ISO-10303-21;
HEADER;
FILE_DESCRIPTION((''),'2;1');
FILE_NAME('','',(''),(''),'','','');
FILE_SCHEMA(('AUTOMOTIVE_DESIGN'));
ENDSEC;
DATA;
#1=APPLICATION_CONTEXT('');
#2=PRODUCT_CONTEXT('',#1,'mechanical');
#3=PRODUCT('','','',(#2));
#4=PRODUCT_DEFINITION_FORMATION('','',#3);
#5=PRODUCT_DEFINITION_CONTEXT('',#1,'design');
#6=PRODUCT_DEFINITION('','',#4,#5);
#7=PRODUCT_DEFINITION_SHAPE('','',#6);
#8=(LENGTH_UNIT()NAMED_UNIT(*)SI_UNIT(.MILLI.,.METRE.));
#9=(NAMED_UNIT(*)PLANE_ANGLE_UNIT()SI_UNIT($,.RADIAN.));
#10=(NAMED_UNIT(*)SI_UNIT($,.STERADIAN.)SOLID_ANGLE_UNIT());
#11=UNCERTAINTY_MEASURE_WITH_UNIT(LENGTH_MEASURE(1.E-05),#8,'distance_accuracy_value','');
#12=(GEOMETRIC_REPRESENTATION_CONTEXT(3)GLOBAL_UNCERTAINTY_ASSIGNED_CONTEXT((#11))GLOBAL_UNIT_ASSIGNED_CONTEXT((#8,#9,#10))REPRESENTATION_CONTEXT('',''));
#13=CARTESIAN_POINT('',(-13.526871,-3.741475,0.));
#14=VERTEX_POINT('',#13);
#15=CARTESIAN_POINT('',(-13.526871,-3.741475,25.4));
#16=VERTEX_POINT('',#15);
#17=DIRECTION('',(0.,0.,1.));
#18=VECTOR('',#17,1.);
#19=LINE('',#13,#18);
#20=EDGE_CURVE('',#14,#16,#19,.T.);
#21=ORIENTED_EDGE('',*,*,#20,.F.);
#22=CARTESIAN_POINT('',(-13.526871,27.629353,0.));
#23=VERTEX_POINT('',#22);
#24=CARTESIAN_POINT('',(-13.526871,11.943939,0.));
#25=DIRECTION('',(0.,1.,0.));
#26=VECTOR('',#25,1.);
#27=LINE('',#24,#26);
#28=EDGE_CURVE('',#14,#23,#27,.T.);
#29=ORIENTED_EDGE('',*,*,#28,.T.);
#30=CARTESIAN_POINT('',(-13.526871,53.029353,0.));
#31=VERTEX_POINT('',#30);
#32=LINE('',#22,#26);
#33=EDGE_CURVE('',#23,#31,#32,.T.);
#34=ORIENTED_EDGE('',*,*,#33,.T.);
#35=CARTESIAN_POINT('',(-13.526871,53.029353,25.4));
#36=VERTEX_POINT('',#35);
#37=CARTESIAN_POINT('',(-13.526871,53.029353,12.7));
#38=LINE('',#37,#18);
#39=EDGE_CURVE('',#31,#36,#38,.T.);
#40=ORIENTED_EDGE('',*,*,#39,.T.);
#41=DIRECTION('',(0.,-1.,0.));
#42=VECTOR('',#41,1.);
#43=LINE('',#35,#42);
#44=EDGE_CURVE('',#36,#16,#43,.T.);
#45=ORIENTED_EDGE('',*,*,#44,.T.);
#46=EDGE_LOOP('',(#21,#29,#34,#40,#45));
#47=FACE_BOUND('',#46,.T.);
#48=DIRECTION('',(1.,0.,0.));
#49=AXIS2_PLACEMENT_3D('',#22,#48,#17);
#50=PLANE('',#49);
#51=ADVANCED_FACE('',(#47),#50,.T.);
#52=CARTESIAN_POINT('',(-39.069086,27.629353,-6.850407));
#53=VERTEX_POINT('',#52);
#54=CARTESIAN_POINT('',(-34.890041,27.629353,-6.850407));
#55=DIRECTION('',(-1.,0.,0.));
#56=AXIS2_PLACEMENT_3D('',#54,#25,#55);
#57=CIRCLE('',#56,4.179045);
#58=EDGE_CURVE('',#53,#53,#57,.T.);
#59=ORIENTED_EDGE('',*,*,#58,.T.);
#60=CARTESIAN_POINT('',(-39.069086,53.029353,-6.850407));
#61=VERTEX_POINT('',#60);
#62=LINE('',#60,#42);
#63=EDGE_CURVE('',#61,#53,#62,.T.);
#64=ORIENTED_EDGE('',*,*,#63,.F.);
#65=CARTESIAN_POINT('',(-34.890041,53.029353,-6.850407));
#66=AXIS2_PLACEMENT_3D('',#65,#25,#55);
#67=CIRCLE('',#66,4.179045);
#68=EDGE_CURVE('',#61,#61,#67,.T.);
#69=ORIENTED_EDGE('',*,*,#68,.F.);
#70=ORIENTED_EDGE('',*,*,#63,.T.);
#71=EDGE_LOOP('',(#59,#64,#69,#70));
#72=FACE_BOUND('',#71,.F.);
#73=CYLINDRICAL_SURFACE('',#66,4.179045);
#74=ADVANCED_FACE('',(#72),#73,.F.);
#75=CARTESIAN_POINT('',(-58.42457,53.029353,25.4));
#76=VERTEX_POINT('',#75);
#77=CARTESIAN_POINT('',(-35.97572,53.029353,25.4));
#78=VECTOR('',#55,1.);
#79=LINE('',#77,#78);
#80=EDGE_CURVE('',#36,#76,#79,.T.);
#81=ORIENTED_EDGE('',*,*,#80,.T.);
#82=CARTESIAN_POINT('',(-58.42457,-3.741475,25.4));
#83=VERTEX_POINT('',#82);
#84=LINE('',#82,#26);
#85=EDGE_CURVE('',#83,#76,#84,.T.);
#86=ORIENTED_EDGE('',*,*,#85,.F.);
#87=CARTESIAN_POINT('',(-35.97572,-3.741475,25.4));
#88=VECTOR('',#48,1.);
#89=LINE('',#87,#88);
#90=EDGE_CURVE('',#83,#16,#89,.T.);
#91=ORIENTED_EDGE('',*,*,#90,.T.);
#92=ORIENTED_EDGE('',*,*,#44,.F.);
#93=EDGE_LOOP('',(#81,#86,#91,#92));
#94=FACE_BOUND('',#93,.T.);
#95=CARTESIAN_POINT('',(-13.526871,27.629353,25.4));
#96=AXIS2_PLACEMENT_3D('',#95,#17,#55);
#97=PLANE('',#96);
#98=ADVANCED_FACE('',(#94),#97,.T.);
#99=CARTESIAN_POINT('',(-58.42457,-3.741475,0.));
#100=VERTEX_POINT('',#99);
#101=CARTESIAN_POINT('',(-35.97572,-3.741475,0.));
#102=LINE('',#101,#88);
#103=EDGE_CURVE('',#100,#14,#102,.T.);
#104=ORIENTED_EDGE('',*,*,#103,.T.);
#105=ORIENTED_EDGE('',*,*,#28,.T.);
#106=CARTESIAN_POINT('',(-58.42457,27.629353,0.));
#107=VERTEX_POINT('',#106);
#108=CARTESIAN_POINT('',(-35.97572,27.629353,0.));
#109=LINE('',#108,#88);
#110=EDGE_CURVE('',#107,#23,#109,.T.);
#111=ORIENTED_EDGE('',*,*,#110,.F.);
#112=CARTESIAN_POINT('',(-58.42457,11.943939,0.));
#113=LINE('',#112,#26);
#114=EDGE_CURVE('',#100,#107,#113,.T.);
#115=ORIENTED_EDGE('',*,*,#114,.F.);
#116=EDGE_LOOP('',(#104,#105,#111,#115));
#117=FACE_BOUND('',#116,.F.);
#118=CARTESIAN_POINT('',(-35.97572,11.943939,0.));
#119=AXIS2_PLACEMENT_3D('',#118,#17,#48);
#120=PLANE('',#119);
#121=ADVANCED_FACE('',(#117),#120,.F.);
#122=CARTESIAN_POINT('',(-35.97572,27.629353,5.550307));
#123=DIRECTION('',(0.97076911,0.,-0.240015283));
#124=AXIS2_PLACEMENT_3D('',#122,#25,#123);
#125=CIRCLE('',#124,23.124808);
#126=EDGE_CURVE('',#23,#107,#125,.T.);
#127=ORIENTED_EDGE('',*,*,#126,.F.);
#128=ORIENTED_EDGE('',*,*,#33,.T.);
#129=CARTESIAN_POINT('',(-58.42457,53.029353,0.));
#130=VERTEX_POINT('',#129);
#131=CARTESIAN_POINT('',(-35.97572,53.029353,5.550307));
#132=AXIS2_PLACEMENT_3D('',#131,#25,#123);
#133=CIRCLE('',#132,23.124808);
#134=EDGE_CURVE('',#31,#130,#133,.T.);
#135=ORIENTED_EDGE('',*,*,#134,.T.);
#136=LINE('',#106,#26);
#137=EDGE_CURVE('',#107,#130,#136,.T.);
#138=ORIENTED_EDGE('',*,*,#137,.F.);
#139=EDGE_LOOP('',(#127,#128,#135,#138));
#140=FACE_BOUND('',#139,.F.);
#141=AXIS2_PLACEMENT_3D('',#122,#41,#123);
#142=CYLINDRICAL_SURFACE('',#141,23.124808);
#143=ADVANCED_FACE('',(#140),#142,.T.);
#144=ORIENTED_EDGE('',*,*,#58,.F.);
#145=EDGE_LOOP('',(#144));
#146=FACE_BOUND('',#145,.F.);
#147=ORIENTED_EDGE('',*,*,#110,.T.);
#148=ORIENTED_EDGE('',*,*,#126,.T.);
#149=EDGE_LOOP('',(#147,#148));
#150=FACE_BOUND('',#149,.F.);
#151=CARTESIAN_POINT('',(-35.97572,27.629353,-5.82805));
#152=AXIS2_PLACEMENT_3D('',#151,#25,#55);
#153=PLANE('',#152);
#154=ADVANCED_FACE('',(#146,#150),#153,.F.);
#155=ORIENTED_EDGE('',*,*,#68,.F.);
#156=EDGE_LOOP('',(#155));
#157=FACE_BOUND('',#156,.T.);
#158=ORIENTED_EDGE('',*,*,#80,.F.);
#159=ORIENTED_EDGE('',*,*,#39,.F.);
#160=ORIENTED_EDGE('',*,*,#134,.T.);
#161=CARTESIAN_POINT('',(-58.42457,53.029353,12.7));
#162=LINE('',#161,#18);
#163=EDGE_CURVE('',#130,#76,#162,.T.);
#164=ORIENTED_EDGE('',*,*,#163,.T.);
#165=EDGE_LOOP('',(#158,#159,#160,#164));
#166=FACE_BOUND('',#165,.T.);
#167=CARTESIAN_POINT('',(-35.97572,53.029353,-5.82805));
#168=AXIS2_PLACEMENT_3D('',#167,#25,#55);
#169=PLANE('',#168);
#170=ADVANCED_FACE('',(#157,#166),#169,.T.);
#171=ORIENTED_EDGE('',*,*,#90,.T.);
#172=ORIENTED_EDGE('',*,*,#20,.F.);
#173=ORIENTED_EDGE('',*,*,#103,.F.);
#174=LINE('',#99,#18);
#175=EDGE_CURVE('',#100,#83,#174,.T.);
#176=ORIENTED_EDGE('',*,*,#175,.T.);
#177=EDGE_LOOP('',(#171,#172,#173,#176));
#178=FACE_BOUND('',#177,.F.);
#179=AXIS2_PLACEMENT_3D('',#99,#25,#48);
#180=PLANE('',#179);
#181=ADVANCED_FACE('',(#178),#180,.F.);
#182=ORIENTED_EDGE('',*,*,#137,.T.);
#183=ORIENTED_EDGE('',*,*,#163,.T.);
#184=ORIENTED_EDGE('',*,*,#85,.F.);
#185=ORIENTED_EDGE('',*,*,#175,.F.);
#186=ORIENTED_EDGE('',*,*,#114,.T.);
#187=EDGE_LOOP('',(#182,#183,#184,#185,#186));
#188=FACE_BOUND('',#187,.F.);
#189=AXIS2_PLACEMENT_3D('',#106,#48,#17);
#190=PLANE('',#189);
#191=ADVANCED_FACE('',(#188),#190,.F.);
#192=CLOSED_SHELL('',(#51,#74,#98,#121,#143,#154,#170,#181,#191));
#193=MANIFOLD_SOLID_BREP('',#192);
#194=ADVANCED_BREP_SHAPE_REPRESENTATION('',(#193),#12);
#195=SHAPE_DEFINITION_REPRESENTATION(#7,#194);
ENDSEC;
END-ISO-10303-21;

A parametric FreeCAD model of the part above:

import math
import FreeCAD as App
import Part
import Sketcher

V = App.Vector
Q = App.Units.Quantity


def add_polygon(sketch, points):
    """Adds a closed chain of lines whose ends are joined by coincident constraints."""
    first, n = sketch.GeometryCount, len(points)
    for a, b in zip(points, points[1:] + points[:1]):
        sketch.addGeometry(Part.LineSegment(App.Vector(*a, 0), App.Vector(*b, 0)), False)
    for i in range(n):
        sketch.addConstraint(Sketcher.Constraint("Coincident", first + i, 2, first + (i + 1) % n, 1))

doc = App.newDocument("Part")
body = doc.addObject("PartDesign::Body", "Body")

sketch1 = doc.addObject("Sketcher::SketchObject", "Sketch")
body.addObject(sketch1)
sketch1.AttachmentSupport = (doc.XY_Plane, [""])
sketch1.MapMode = "FlatFace"
add_polygon(sketch1, [(-58, 28), (-58, -4), (-14, -4), (-14, 28)])
sketch1.addConstraint(Sketcher.Constraint("Vertical", 0))
sketch1.addConstraint(Sketcher.Constraint("Horizontal", 1))
sketch1.addConstraint(Sketcher.Constraint("Vertical", 2))
sketch1.addConstraint(Sketcher.Constraint("Horizontal", 3))
sketch1.addConstraint(Sketcher.Constraint("DistanceX", 1, 1, 1, 2, Q("44.897699 mm")))
sketch1.addConstraint(Sketcher.Constraint("DistanceY", 0, 2, 0, 1, Q("31.370828 mm")))
sketch1.addConstraint(Sketcher.Constraint("DistanceX", 0, 2, -1, 1, Q("58.42457 mm")))
sketch1.addConstraint(Sketcher.Constraint("DistanceY", 0, 2, -1, 1, Q("3.741475 mm")))
pad1 = doc.addObject("PartDesign::Pad", "Pad")
body.addObject(pad1)
pad1.Profile = sketch1
pad1.Length = Q("1 in")

sketch2 = doc.addObject("Sketcher::SketchObject", "Sketch001")
body.addObject(sketch2)
sketch2.AttachmentSupport = (doc.XZ_Plane, [""])
sketch2.MapMode = "FlatFace"
sketch2.AttachmentOffset = App.Placement(V(0, 0, -27.629353), App.Rotation())
sketch2.addGeometry(Part.ArcOfCircle(Part.Circle(V(-36, 6, 0), V(0, 0, 1), 23), math.radians(-166), math.radians(-14)), False)
sketch2.addGeometry(Part.LineSegment(V(-58, 0, 0), V(-58, 25, 0)), False)
sketch2.addGeometry(Part.LineSegment(V(-58, 25, 0), V(-14, 25, 0)), False)
sketch2.addGeometry(Part.LineSegment(V(-14, 25, 0), V(-14, 0, 0)), False)
sketch2.addConstraint(Sketcher.Constraint("Coincident", 0, 1, 1, 1))
sketch2.addConstraint(Sketcher.Constraint("Coincident", 1, 2, 2, 1))
sketch2.addConstraint(Sketcher.Constraint("Coincident", 2, 2, 3, 1))
sketch2.addConstraint(Sketcher.Constraint("Coincident", 3, 2, 0, 2))
sketch2.addConstraint(Sketcher.Constraint("Vertical", 1))
sketch2.addConstraint(Sketcher.Constraint("Horizontal", 2))
sketch2.addConstraint(Sketcher.Constraint("Vertical", 3))
sketch2.addConstraint(Sketcher.Constraint("PointOnObject", 0, 1, -1))
sketch2.addConstraint(Sketcher.Constraint("PointOnObject", 3, 2, -1))
sketch2.addConstraint(Sketcher.Constraint("DistanceY", 1, 1, 1, 2, Q("1 in")))
sketch2.addConstraint(Sketcher.Constraint("Radius", 0, Q("23.124808 mm")))
sketch2.addConstraint(Sketcher.Constraint("DistanceX", 2, 1, 2, 2, Q("44.897699 mm")))
sketch2.addConstraint(Sketcher.Constraint("DistanceX", 0, 3, -1, 1, Q("35.97572 mm")))
pad2 = doc.addObject("PartDesign::Pad", "Pad001")
body.addObject(pad2)
pad2.Profile = sketch2
pad2.Length = Q("1 in")
pad2.Reversed = True

sketch3 = doc.addObject("Sketcher::SketchObject", "Sketch002")
body.addObject(sketch3)
sketch3.AttachmentSupport = (doc.XZ_Plane, [""])
sketch3.MapMode = "FlatFace"
sketch3.AttachmentOffset = App.Placement(V(0, 0, -53.029353), App.Rotation())
sketch3.addGeometry(Part.Circle(V(-34.9, -6.9, 0), V(0, 0, 1), 4.2), False)
sketch3.addConstraint(Sketcher.Constraint("Diameter", 0, Q("8.35809 mm")))
sketch3.addConstraint(Sketcher.Constraint("DistanceX", 0, 3, -1, 1, Q("34.890041 mm")))
sketch3.addConstraint(Sketcher.Constraint("DistanceY", 0, 3, -1, 1, Q("6.850407 mm")))
pocket1 = doc.addObject("PartDesign::Pocket", "Pocket")
body.addObject(pocket1)
pocket1.Profile = sketch3
pocket1.Length = Q("1 in")
pocket1.Reversed = True

doc.recompute()
